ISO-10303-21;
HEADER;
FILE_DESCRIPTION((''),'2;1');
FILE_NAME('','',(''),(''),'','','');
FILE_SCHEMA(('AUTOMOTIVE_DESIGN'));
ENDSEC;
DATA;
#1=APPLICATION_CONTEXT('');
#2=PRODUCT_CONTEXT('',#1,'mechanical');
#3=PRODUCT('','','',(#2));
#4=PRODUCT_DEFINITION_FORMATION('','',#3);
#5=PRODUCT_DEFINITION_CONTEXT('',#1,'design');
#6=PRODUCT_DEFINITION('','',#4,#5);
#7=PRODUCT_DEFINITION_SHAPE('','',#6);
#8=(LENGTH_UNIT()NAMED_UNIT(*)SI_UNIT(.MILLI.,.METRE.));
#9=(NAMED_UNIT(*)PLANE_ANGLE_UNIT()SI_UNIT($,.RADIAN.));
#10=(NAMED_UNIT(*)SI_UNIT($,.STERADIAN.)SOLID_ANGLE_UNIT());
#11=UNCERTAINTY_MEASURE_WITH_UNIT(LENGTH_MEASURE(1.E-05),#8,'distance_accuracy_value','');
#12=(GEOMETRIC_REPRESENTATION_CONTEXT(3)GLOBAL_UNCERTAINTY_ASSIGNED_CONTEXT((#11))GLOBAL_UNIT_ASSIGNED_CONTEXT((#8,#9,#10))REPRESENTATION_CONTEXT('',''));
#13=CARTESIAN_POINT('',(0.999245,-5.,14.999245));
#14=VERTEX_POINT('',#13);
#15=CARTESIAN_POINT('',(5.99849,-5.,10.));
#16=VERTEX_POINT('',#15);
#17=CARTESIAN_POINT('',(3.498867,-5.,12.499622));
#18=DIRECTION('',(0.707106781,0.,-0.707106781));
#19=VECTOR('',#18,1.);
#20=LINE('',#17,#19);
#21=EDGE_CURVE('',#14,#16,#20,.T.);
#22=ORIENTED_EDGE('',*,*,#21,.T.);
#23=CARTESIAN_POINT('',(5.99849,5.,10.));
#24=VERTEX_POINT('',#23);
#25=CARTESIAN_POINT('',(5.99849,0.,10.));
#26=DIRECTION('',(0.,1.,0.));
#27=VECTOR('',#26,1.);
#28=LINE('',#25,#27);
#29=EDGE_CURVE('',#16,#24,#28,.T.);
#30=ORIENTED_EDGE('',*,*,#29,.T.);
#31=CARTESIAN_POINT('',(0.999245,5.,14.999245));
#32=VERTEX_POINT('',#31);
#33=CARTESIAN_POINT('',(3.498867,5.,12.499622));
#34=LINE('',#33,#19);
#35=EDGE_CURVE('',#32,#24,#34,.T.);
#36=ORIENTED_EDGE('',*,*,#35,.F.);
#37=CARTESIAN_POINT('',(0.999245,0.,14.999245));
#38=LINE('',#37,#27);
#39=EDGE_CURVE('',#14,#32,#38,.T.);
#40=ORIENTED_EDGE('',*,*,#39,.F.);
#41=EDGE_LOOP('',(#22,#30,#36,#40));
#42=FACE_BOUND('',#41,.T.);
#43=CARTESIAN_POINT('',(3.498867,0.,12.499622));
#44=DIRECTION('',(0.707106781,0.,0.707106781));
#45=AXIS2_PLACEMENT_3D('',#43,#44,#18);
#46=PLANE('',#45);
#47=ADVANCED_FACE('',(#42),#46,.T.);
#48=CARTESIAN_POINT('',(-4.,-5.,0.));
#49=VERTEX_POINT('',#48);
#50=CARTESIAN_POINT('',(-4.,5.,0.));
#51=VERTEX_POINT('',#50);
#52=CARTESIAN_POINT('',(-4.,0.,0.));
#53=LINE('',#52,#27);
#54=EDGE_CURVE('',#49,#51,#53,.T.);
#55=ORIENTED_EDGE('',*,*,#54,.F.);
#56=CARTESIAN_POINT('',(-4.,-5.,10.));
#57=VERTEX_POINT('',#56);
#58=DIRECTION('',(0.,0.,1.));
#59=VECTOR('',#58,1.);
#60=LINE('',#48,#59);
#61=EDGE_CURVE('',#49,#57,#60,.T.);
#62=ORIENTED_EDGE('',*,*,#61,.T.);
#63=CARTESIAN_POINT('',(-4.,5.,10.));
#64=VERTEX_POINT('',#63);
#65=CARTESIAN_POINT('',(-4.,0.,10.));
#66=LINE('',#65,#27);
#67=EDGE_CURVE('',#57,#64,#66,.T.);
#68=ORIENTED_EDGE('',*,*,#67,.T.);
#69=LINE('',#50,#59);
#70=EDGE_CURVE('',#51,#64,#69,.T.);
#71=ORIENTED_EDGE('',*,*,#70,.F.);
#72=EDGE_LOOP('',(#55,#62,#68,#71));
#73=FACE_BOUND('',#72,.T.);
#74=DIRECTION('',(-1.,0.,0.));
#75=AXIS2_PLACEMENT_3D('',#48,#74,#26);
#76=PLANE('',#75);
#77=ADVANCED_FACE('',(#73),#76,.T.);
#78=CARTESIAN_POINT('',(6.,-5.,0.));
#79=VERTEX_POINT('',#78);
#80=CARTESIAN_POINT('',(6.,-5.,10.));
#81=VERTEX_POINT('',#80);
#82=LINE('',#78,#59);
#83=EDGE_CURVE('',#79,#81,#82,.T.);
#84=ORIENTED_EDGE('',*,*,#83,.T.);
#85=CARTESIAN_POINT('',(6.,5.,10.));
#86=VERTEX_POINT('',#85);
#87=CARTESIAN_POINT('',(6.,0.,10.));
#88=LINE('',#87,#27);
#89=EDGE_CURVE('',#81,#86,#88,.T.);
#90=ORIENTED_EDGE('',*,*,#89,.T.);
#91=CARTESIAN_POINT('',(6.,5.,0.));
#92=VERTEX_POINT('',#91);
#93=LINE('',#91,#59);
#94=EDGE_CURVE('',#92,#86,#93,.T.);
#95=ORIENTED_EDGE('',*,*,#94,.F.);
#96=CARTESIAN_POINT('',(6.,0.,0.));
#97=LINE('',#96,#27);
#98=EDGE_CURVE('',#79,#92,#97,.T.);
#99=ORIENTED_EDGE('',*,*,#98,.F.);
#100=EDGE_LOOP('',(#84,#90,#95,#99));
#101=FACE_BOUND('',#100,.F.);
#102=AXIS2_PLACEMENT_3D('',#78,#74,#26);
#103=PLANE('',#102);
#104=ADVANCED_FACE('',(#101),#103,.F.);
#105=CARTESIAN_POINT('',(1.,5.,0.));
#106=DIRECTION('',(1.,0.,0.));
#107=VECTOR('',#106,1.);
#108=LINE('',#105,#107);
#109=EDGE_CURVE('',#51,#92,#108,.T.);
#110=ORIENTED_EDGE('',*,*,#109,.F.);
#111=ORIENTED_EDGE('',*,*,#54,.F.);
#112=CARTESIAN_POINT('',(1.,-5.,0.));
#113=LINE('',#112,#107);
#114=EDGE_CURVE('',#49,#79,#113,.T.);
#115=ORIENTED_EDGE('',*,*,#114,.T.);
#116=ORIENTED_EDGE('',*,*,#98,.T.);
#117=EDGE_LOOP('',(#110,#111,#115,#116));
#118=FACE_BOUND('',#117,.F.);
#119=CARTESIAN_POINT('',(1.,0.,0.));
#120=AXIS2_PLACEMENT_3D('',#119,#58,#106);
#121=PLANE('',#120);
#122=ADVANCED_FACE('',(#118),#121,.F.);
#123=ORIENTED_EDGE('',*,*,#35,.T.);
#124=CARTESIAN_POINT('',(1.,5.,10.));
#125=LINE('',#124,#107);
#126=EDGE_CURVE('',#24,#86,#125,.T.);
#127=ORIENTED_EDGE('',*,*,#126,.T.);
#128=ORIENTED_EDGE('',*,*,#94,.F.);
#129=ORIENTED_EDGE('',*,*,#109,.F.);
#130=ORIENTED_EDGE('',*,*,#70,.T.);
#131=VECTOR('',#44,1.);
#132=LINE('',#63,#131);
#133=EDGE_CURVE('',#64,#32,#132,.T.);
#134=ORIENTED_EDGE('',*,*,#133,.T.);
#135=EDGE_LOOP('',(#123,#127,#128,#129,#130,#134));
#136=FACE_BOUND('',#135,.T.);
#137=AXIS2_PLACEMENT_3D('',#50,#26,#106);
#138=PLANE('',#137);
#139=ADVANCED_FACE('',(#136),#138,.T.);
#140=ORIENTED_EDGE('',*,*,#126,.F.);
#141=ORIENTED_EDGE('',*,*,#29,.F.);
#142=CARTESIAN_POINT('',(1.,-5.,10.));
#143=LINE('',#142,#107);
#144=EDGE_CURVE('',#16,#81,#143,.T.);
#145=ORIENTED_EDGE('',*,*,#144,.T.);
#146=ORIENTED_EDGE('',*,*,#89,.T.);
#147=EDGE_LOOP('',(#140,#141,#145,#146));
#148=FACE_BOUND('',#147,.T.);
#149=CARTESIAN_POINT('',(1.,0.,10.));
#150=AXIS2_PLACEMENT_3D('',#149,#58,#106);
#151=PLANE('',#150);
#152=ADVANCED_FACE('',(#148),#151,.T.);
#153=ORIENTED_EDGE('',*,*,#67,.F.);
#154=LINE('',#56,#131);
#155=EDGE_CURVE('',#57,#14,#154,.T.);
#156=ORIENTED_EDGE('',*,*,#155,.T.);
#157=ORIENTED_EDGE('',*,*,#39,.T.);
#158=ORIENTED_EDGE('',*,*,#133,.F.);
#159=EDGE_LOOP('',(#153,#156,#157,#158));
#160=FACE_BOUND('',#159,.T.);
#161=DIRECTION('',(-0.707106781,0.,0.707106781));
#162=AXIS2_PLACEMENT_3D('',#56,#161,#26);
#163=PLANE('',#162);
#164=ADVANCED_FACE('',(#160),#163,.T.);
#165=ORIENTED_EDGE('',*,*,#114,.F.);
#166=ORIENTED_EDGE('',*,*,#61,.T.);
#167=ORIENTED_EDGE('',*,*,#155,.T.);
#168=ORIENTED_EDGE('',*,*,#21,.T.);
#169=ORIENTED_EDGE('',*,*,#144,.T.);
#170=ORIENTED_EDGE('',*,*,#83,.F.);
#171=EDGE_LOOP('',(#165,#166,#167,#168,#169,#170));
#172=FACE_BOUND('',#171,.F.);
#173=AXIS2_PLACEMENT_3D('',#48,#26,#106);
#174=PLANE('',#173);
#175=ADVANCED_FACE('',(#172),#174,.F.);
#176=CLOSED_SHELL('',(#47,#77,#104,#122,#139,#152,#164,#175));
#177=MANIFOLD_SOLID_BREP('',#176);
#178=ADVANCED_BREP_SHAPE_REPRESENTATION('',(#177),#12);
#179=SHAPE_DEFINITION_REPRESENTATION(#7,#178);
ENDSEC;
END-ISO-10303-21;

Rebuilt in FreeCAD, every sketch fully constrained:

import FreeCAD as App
import Part
import Sketcher
from FreeCAD import Vector
Q = App.Units.Quantity


def add_polygon(sketch, points):
    """Adds a closed chain of lines whose ends are joined by coincident constraints."""
    first, n = sketch.GeometryCount, len(points)
    for a, b in zip(points, points[1:] + points[:1]):
        sketch.addGeometry(Part.LineSegment(App.Vector(*a, 0), App.Vector(*b, 0)), False)
    for i in range(n):
        sketch.addConstraint(Sketcher.Constraint("Coincident", first + i, 2, first + (i + 1) % n, 1))

doc = App.newDocument("Part")
body = doc.addObject("PartDesign::Body", "Body")

# Sketch on XY plane
sketch1 = body.newObject("Sketcher::SketchObject", "Sketch")
sketch1.AttachmentSupport = (doc.getObject("XY_Plane"), [""])
sketch1.MapMode = "FlatFace"
add_polygon(sketch1, [(-4, 5), (-4, -5), (6, -5), (6, 5)])  # lines 0-3
sketch1.addConstraint(Sketcher.Constraint("Vertical", 0))
sketch1.addConstraint(Sketcher.Constraint("Horizontal", 1))
sketch1.addConstraint(Sketcher.Constraint("Vertical", 2))
sketch1.addConstraint(Sketcher.Constraint("Horizontal", 3))
sketch1.addConstraint(Sketcher.Constraint("Equal", 3, 0))
sketch1.addConstraint(Sketcher.Constraint("DistanceX", 1, 1, 1, 2, Q("10 mm")))
sketch1.addConstraint(Sketcher.Constraint("DistanceX", 0, 2, -1, 1, Q("4 mm")))
sketch1.addConstraint(Sketcher.Constraint("DistanceY", 0, 2, -1, 1, Q("5 mm")))
pad1 = body.newObject("PartDesign::Pad", "Pad")
pad1.Profile = sketch1
pad1.Length = 10
body2 = doc.addObject("PartDesign::Body", "Body001")

# Sketch on XY plane
sketch2 = body2.newObject("Sketcher::SketchObject", "Sketch001")
sketch2.AttachmentSupport = (doc.getObject("XY_Plane001"), [""])
sketch2.MapMode = "FlatFace"
add_polygon(sketch2, [(0, 10), (0, 0), (7, 0), (7, 10)])  # lines 0-3
sketch2.addConstraint(Sketcher.Constraint("Vertical", 0))
sketch2.addConstraint(Sketcher.Constraint("Horizontal", 1))
sketch2.addConstraint(Sketcher.Constraint("Vertical", 2))
sketch2.addConstraint(Sketcher.Constraint("Horizontal", 3))
sketch2.addConstraint(Sketcher.Constraint("Coincident", 0, 2, -1, 1))
sketch2.addConstraint(Sketcher.Constraint("DistanceY", 0, 2, 0, 1, Q("10 mm")))
sketch2.addConstraint(Sketcher.Constraint("DistanceX", 1, 1, 1, 2, Q("7.07 mm")))
pad2 = body2.newObject("PartDesign::Pad", "Pad001")
pad2.Profile = sketch2
pad2.Length = 7.07
body3 = doc.addObject("PartDesign::Body", "Body002")
doc.recompute()

body2.Placement = App.Placement(Vector(-4, -5, 10), App.Rotation(Vector(0, 1, 0), 45))
boolean = body3.newObject("PartDesign::Boolean", "Boolean")
boolean.Type = "Fuse"
boolean.addObjects([body2])
doc.recompute()

boolean2 = body3.newObject("PartDesign::Boolean", "Boolean001")
boolean2.Type = "Fuse"
boolean2.addObjects([body])

doc.recompute()
